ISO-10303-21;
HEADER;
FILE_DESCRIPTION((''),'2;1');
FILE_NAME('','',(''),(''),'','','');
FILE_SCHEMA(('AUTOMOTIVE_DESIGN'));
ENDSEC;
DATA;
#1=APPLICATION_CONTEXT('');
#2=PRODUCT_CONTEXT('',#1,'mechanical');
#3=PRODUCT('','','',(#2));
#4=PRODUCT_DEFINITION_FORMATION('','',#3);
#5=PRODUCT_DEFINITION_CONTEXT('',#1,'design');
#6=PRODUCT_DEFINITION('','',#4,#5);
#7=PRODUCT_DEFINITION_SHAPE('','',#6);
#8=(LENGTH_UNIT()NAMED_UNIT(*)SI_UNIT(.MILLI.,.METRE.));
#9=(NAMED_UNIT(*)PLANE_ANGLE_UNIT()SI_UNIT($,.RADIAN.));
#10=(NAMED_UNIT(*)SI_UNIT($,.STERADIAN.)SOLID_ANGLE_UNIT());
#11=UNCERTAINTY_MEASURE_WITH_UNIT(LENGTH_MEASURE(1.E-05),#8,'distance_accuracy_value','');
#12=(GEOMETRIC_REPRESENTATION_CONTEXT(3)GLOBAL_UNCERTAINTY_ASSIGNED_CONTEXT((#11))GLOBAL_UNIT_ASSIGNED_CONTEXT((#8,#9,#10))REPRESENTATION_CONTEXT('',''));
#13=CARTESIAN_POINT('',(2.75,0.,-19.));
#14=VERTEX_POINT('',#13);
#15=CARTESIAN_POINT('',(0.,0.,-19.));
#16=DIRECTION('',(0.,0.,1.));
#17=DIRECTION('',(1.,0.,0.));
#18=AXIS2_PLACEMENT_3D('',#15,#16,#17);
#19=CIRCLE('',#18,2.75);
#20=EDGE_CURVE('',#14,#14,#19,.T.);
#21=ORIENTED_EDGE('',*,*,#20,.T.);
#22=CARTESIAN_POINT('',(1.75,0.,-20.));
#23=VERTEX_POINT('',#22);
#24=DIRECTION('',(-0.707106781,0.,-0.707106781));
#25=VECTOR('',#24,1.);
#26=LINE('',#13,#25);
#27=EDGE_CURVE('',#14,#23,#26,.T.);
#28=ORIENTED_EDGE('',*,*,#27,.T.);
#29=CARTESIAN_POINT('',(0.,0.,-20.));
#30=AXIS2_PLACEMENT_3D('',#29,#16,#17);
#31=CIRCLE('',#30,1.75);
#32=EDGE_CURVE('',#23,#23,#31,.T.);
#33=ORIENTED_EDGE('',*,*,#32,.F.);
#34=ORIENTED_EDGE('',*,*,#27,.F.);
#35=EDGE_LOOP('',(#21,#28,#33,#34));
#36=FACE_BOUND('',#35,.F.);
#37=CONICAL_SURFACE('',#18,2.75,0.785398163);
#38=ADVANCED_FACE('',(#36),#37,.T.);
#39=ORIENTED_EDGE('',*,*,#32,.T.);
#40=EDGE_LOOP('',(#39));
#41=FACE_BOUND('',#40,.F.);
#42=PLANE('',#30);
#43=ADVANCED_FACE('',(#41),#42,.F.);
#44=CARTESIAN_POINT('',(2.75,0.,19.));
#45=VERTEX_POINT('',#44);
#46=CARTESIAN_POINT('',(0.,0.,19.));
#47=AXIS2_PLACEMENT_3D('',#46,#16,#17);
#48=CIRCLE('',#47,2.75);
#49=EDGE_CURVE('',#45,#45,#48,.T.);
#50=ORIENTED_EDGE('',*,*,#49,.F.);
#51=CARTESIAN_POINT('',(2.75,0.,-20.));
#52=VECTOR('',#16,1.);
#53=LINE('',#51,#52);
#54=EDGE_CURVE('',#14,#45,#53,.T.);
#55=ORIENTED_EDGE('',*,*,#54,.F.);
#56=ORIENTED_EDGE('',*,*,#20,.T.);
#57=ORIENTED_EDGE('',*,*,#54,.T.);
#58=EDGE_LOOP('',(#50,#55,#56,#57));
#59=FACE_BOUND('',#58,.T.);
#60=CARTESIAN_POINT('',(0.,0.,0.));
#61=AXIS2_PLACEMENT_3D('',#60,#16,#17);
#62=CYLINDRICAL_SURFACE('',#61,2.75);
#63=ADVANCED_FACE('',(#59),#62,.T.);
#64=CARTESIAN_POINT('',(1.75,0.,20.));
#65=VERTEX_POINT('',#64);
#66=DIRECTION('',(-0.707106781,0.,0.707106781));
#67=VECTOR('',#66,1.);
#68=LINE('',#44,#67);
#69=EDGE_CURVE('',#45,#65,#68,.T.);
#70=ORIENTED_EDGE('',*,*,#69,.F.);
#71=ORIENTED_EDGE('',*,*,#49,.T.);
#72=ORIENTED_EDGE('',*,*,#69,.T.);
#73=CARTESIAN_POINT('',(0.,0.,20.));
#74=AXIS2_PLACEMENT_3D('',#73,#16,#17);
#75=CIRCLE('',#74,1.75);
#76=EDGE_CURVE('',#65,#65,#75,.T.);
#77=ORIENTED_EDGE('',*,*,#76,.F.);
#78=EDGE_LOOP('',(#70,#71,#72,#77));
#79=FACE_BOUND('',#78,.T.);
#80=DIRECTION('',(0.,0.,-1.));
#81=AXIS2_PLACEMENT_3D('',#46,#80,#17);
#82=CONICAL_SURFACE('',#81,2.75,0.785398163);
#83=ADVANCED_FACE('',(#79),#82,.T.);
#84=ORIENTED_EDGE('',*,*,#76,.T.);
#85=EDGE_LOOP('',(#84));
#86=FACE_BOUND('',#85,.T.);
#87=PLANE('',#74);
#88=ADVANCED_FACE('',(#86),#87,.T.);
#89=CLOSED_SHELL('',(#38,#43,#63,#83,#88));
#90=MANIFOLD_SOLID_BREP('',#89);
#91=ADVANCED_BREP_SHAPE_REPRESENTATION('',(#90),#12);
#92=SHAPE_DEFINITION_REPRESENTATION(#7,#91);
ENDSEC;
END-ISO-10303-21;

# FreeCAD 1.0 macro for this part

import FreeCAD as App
import Part
import Sketcher
from FreeCAD import Vector
Q = App.Units.Quantity


def edges_at(feature, points):
    """Names of the edges that pass closest to the given points."""
    edges = feature.Shape.Edges
    near = lambda p: min(range(len(edges)), key=lambda i: edges[i].distToShape(Part.Vertex(*p))[0])
    return sorted({f"Edge{near(p) + 1}" for p in points})

doc = App.newDocument("Part")
body = doc.addObject("PartDesign::Body", "Body")

sketch1 = body.newObject("Sketcher::SketchObject", "Sketch")
sketch1.AttachmentSupport = (doc.getObject("XY_Plane"), [""])
sketch1.MapMode = "FlatFace"
sketch1.addGeometry(Part.Circle(Vector(0, 0, 0), Vector(0, 0, 1), 2.75), False)
sketch1.addConstraint(Sketcher.Constraint("Coincident", 0, 3, -1, 1))
sketch1.addConstraint(Sketcher.Constraint("Diameter", 0, Q("5.5 mm")))
pad1 = body.newObject("PartDesign::Pad", "Pad")
pad1.Profile = sketch1
pad1.Length = 40
pad1.Midplane = True
doc.recompute()

chamfer = body.newObject("PartDesign::Chamfer", "Chamfer")
chamfer.Base = (pad1, edges_at(pad1, [(-2.75, 0, 20), (-2.75, 0, -20)]))
chamfer.Size = 1

doc.recompute()
